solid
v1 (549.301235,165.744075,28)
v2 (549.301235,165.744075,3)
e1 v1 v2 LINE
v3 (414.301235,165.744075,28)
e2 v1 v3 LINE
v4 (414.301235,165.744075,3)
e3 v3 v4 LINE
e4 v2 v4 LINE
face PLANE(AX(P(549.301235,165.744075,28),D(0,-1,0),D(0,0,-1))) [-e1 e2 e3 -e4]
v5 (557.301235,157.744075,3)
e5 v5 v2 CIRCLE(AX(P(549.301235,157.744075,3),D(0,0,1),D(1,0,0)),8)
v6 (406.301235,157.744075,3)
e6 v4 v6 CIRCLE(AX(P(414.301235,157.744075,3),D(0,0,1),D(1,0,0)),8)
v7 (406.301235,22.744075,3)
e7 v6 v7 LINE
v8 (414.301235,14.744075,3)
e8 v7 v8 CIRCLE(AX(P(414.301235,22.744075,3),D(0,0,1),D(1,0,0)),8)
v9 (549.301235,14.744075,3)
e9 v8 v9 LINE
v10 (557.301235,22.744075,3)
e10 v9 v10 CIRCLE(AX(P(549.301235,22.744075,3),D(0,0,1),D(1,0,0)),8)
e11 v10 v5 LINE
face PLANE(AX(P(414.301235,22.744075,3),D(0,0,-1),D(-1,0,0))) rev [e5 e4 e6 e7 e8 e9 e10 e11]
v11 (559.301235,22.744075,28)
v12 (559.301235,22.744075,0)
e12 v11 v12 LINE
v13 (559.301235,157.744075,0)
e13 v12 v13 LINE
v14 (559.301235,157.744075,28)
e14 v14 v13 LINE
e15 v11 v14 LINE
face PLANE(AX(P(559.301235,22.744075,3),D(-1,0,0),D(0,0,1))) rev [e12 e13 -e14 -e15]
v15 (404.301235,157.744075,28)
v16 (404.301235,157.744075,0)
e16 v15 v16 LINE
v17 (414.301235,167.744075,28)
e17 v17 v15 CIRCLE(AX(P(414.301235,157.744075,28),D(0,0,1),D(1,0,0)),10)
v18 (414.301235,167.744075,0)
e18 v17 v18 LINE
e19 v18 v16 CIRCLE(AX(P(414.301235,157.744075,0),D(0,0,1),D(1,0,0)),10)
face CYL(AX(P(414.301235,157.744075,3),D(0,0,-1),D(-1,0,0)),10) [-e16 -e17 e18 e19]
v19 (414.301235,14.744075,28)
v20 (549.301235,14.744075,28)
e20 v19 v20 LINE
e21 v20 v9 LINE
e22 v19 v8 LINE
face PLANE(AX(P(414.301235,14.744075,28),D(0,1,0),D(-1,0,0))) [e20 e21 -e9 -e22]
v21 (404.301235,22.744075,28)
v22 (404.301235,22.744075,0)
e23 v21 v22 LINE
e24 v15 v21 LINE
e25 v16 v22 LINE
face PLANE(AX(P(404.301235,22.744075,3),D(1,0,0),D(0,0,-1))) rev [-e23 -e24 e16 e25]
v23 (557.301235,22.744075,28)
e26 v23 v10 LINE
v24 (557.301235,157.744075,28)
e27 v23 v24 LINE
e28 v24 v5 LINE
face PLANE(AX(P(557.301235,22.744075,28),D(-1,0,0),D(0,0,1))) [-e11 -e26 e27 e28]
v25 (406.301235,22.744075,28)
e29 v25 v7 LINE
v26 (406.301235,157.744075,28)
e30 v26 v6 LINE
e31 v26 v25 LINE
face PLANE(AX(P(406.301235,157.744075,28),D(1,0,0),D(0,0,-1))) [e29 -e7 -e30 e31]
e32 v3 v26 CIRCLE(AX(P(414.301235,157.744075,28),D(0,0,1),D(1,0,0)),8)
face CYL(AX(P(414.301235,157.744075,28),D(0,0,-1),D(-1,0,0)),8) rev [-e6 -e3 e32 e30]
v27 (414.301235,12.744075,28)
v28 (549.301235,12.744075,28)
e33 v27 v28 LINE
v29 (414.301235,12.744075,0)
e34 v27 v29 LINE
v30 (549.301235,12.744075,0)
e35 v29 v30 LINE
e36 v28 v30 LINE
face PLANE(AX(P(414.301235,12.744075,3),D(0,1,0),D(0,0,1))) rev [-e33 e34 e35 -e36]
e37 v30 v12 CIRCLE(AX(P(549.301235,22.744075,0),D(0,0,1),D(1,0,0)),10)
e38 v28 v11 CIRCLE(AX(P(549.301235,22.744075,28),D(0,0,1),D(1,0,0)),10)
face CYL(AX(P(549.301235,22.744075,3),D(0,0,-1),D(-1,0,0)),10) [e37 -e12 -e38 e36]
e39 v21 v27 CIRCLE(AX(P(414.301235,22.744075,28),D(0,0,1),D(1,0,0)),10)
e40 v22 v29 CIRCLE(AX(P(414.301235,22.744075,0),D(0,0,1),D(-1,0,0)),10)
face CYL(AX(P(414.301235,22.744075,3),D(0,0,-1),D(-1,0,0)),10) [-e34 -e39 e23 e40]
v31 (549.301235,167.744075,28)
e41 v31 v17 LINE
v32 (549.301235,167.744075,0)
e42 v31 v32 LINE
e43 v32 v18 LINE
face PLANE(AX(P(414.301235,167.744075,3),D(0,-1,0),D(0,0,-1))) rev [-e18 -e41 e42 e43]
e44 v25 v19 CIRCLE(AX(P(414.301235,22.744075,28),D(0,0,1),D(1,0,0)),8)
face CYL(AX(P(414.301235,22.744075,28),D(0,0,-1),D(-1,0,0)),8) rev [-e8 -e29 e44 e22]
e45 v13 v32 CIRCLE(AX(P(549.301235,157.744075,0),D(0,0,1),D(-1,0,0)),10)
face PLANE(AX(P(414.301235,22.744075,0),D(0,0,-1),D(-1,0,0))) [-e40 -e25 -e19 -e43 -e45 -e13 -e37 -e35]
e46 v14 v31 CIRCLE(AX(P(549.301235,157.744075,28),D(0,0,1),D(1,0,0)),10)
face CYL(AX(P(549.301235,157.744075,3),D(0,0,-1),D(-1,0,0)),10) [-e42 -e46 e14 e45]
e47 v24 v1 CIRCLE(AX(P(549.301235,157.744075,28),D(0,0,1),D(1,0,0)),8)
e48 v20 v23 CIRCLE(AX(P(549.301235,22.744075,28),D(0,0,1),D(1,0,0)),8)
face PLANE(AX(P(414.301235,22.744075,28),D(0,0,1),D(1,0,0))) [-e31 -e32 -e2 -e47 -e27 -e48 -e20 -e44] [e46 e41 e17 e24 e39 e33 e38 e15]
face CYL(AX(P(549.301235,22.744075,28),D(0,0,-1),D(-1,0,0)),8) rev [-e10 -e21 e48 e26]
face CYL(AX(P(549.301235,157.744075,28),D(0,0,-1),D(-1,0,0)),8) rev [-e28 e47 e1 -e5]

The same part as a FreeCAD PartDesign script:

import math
import FreeCAD as App
import Part
import Sketcher

doc = App.newDocument("Part")
body = doc.addObject("PartDesign::Body", "Body")

# Sketch on XY plane
sketch1 = body.newObject("Sketcher::SketchObject", "Sketch")
sketch1.AttachmentSupport = (doc.getObject("XY_Plane"), [""])
sketch1.MapMode = "FlatFace"
sketch1.addGeometry(Part.LineSegment(App.Vector(414, 13, 0), App.Vector(549, 13, 0)), False)
sketch1.addGeometry(Part.ArcOfCircle(Part.Circle(App.Vector(549, 23, 0), App.Vector(0, 0, 1), 10), math.radians(-90), math.radians(0)), False)
sketch1.addGeometry(Part.LineSegment(App.Vector(559, 23, 0), App.Vector(559, 158, 0)), False)
sketch1.addGeometry(Part.ArcOfCircle(Part.Circle(App.Vector(549, 158, 0), App.Vector(0, 0, 1), 10), math.radians(0), math.radians(90)), False)
sketch1.addGeometry(Part.LineSegment(App.Vector(549, 168, 0), App.Vector(414, 168, 0)), False)
sketch1.addGeometry(Part.ArcOfCircle(Part.Circle(App.Vector(414, 158, 0), App.Vector(0, 0, 1), 10), math.radians(90), math.radians(180)), False)
sketch1.addGeometry(Part.LineSegment(App.Vector(404, 158, 0), App.Vector(404, 23, 0)), False)
sketch1.addGeometry(Part.ArcOfCircle(Part.Circle(App.Vector(414, 23, 0), App.Vector(0, 0, 1), 10), math.radians(180), math.radians(270)), False)
sketch1.addConstraint(Sketcher.Constraint("Tangent", 0, 2, 1, 1))
sketch1.addConstraint(Sketcher.Constraint("Tangent", 1, 2, 2, 1))
sketch1.addConstraint(Sketcher.Constraint("Tangent", 2, 2, 3, 1))
sketch1.addConstraint(Sketcher.Constraint("Tangent", 3, 2, 4, 1))
sketch1.addConstraint(Sketcher.Constraint("Tangent", 4, 2, 5, 1))
sketch1.addConstraint(Sketcher.Constraint("Tangent", 5, 2, 6, 1))
sketch1.addConstraint(Sketcher.Constraint("Tangent", 6, 2, 7, 1))
sketch1.addConstraint(Sketcher.Constraint("Tangent", 7, 2, 0, 1))
sketch1.addConstraint(Sketcher.Constraint("Horizontal", 0))
sketch1.addConstraint(Sketcher.Constraint("Vertical", 2))
sketch1.addConstraint(Sketcher.Constraint("Horizontal", 4))
sketch1.addConstraint(Sketcher.Constraint("Vertical", 6))
sketch1.addConstraint(Sketcher.Constraint("Equal", 1, 3))
sketch1.addConstraint(Sketcher.Constraint("Equal", 3, 5))
sketch1.addConstraint(Sketcher.Constraint("Equal", 5, 7))
sketch1.addConstraint(Sketcher.Constraint("Equal", 4, 2))
sketch1.addConstraint(Sketcher.Constraint("Radius", 1, 10.0))
sketch1.addConstraint(Sketcher.Constraint("DistanceX", 0, 1, 0, 2, 135.0))
sketch1.addConstraint(Sketcher.Constraint("DistanceX", -1, 1, 1, 3, 549.301235))
sketch1.addConstraint(Sketcher.Constraint("DistanceY", -1, 1, 1, 3, 22.744075))
pad1 = body.newObject("PartDesign::Pad", "Pad")
pad1.Profile = sketch1
pad1.Length = 3

# Sketch on XY plane
sketch2 = body.newObject("Sketcher::SketchObject", "Sketch001")
sketch2.AttachmentSupport = (doc.getObject("XY_Plane"), [""])
sketch2.MapMode = "FlatFace"
sketch2.AttachmentOffset = App.Placement(App.Vector(0, 0, 3), App.Rotation())
sketch2.addGeometry(Part.LineSegment(App.Vector(414, 13, 0), App.Vector(549, 13, 0)), False)
sketch2.addGeometry(Part.ArcOfCircle(Part.Circle(App.Vector(549, 23, 0), App.Vector(0, 0, 1), 10), math.radians(-90), math.radians(0)), False)
sketch2.addGeometry(Part.LineSegment(App.Vector(559, 23, 0), App.Vector(559, 158, 0)), False)
sketch2.addGeometry(Part.ArcOfCircle(Part.Circle(App.Vector(549, 158, 0), App.Vector(0, 0, 1), 10), math.radians(0), math.radians(90)), False)
sketch2.addGeometry(Part.LineSegment(App.Vector(549, 168, 0), App.Vector(414, 168, 0)), False)
sketch2.addGeometry(Part.ArcOfCircle(Part.Circle(App.Vector(414, 158, 0), App.Vector(0, 0, 1), 10), math.radians(90), math.radians(180)), False)
sketch2.addGeometry(Part.LineSegment(App.Vector(404, 158, 0), App.Vector(404, 23, 0)), False)
sketch2.addGeometry(Part.ArcOfCircle(Part.Circle(App.Vector(414, 23, 0), App.Vector(0, 0, 1), 10), math.radians(180), math.radians(270)), False)
sketch2.addGeometry(Part.LineSegment(App.Vector(557, 158, 0), App.Vector(557, 23, 0)), False)
sketch2.addGeometry(Part.ArcOfCircle(Part.Circle(App.Vector(549, 23, 0), App.Vector(0, 0, 1), 8), math.radians(-90), math.radians(0)), False)
sketch2.addGeometry(Part.LineSegment(App.Vector(549, 15, 0), App.Vector(414, 15, 0)), False)
sketch2.addGeometry(Part.ArcOfCircle(Part.Circle(App.Vector(414, 23, 0), App.Vector(0, 0, 1), 8), math.radians(180), math.radians(270)), False)
sketch2.addGeometry(Part.LineSegment(App.Vector(406, 23, 0), App.Vector(406, 158, 0)), False)
sketch2.addGeometry(Part.ArcOfCircle(Part.Circle(App.Vector(414, 158, 0), App.Vector(0, 0, 1), 8), math.radians(90), math.radians(180)), False)
sketch2.addGeometry(Part.LineSegment(App.Vector(414, 166, 0), App.Vector(549, 166, 0)), False)
sketch2.addGeometry(Part.ArcOfCircle(Part.Circle(App.Vector(549, 158, 0), App.Vector(0, 0, 1), 8), math.radians(0), math.radians(90)), False)
sketch2.addConstraint(Sketcher.Constraint("Tangent", 0, 2, 1, 1))
sketch2.addConstraint(Sketcher.Constraint("Tangent", 1, 2, 2, 1))
sketch2.addConstraint(Sketcher.Constraint("Tangent", 2, 2, 3, 1))
sketch2.addConstraint(Sketcher.Constraint("Tangent", 3, 2, 4, 1))
sketch2.addConstraint(Sketcher.Constraint("Tangent", 4, 2, 5, 1))
sketch2.addConstraint(Sketcher.Constraint("Tangent", 5, 2, 6, 1))
sketch2.addConstraint(Sketcher.Constraint("Tangent", 6, 2, 7, 1))
sketch2.addConstraint(Sketcher.Constraint("Tangent", 7, 2, 0, 1))
sketch2.addConstraint(Sketcher.Constraint("Tangent", 8, 2, 9, 2))
sketch2.addConstraint(Sketcher.Constraint("Tangent", 9, 1, 10, 1))
sketch2.addConstraint(Sketcher.Constraint("Tangent", 10, 2, 11, 2))
sketch2.addConstraint(Sketcher.Constraint("Tangent", 11, 1, 12, 1))
sketch2.addConstraint(Sketcher.Constraint("Tangent", 12, 2, 13, 2))
sketch2.addConstraint(Sketcher.Constraint("Tangent", 13, 1, 14, 1))
sketch2.addConstraint(Sketcher.Constraint("Tangent", 14, 2, 15, 2))
sketch2.addConstraint(Sketcher.Constraint("Tangent", 15, 1, 8, 1))
sketch2.addConstraint(Sketcher.Constraint("Horizontal", 0))
sketch2.addConstraint(Sketcher.Constraint("Vertical", 2))
sketch2.addConstraint(Sketcher.Constraint("Horizontal", 4))
sketch2.addConstraint(Sketcher.Constraint("Vertical", 6))
sketch2.addConstraint(Sketcher.Constraint("Vertical", 8))
sketch2.addConstraint(Sketcher.Constraint("Horizontal", 10))
sketch2.addConstraint(Sketcher.Constraint("Vertical", 12))
sketch2.addConstraint(Sketcher.Constraint("Horizontal", 14))
sketch2.addConstraint(Sketcher.Constraint("Coincident", 9, 3, 1, 3))
sketch2.addConstraint(Sketcher.Constraint("Coincident", 11, 3, 7, 3))
sketch2.addConstraint(Sketcher.Constraint("Coincident", 13, 3, 5, 3))
sketch2.addConstraint(Sketcher.Constraint("Equal", 1, 3))
sketch2.addConstraint(Sketcher.Constraint("Equal", 3, 5))
sketch2.addConstraint(Sketcher.Constraint("Equal", 5, 7))
sketch2.addConstraint(Sketcher.Constraint("Equal", 13, 15))
sketch2.addConstraint(Sketcher.Constraint("Equal", 14, 2))
sketch2.addConstraint(Sketcher.Constraint("Radius", 1, 10.0))
sketch2.addConstraint(Sketcher.Constraint("Radius", 9, 8.0))
sketch2.addConstraint(Sketcher.Constraint("DistanceX", 0, 1, 0, 2, 135.0))
sketch2.addConstraint(Sketcher.Constraint("DistanceX", -1, 1, 1, 3, 549.301235))
sketch2.addConstraint(Sketcher.Constraint("DistanceY", -1, 1, 1, 3, 22.744075))
pad2 = body.newObject("PartDesign::Pad", "Pad001")
pad2.Profile = sketch2
pad2.Length = 25

doc.recompute()
